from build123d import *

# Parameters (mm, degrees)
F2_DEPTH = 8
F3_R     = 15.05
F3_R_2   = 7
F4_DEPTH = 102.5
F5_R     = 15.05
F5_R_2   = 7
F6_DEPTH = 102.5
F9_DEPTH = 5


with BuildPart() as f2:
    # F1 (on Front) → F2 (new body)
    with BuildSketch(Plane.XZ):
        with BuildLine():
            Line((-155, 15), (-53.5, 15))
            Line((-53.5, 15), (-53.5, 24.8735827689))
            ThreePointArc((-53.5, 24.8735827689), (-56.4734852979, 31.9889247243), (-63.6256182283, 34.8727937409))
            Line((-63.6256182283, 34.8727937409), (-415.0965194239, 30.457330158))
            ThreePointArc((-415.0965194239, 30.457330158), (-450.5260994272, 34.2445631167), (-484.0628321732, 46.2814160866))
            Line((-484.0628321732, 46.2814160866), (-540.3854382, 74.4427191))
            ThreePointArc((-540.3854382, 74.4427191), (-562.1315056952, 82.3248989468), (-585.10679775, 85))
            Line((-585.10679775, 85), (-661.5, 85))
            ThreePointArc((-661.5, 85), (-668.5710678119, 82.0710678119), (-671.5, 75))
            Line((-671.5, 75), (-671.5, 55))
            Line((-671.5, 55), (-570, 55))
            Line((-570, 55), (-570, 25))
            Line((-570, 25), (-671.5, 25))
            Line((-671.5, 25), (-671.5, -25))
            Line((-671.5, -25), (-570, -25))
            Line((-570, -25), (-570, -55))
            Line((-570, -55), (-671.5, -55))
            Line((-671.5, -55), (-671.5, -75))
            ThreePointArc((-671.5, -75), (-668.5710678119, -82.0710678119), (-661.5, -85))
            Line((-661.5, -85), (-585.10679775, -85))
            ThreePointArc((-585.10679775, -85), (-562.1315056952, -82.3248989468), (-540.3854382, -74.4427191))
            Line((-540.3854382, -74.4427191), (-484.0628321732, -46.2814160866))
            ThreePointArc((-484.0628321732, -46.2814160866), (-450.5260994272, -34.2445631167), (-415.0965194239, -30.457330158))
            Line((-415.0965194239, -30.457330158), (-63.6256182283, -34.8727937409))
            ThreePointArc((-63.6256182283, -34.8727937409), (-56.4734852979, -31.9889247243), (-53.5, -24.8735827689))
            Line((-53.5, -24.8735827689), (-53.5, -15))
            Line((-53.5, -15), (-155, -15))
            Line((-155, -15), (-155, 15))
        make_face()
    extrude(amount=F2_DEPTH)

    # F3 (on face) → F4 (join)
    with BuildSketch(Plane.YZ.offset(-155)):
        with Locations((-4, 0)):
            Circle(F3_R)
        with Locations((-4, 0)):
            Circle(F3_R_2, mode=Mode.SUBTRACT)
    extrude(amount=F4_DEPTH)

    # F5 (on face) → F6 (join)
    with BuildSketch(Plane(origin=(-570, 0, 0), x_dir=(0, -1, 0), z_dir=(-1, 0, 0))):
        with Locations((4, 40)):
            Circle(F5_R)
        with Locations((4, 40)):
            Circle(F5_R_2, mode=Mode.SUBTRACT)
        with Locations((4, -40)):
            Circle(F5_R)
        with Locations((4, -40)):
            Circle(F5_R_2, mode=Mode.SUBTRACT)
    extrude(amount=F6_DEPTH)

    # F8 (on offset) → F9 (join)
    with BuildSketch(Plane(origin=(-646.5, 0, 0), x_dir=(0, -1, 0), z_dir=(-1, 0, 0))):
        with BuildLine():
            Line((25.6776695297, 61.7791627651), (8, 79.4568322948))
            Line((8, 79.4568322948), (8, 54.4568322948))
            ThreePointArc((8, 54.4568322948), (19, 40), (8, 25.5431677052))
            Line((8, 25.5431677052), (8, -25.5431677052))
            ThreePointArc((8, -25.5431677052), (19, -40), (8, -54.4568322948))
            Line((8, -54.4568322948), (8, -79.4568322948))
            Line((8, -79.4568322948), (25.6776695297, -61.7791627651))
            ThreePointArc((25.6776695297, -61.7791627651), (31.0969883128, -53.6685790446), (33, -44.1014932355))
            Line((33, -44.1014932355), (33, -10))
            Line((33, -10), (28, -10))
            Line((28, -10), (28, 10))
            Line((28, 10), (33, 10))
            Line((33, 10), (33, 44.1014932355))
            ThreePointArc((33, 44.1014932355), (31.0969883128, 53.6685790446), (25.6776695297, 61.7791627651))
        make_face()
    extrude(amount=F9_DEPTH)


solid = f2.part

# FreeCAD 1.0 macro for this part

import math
import FreeCAD as App
import Part
import Sketcher

V = App.Vector
Q = App.Units.Quantity

doc = App.newDocument("Part")
body = doc.addObject("PartDesign::Body", "Body")

sketch1 = doc.addObject("Sketcher::SketchObject", "Sketch")
body.addObject(sketch1)
sketch1.AttachmentSupport = (doc.XZ_Plane, [""])
sketch1.MapMode = "FlatFace"
sketch1.addGeometry(Part.LineSegment(V(-155, 15, 0), V(-54, 15, 0)), False)
sketch1.addGeometry(Part.LineSegment(V(-54, 15, 0), V(-54, 25, 0)), False)
sketch1.addGeometry(Part.ArcOfCircle(Part.Circle(V(-64, 25, 0), V(0, 0, 1), 10), math.radians(0), math.radians(91)), False)
sketch1.addGeometry(Part.LineSegment(V(-64, 35, 0), V(-415, 30, 0)), False)
sketch1.addGeometry(Part.ArcOfCircle(Part.Circle(V(-417, 180, 0), V(0, 0, 1), 150), math.radians(-117), math.radians(-89)), False)
sketch1.addGeometry(Part.LineSegment(V(-484, 46, 0), V(-540, 74, 0)), False)
sketch1.addGeometry(Part.ArcOfCircle(Part.Circle(V(-585, -15, 0), V(0, 0, 1), 100), math.radians(63), math.radians(90)), False)
sketch1.addGeometry(Part.LineSegment(V(-585, 85, 0), V(-662, 85, 0)), False)
sketch1.addGeometry(Part.ArcOfCircle(Part.Circle(V(-662, 75, 0), V(0, 0, 1), 10), math.radians(90), math.radians(180)), False)
sketch1.addGeometry(Part.LineSegment(V(-672, 75, 0), V(-672, 55, 0)), False)
sketch1.addGeometry(Part.LineSegment(V(-672, 55, 0), V(-570, 55, 0)), False)
sketch1.addGeometry(Part.LineSegment(V(-570, 55, 0), V(-570, 25, 0)), False)
sketch1.addGeometry(Part.LineSegment(V(-570, 25, 0), V(-672, 25, 0)), False)
sketch1.addGeometry(Part.LineSegment(V(-672, 25, 0), V(-672, -25, 0)), False)
sketch1.addGeometry(Part.LineSegment(V(-672, -25, 0), V(-570, -25, 0)), False)
sketch1.addGeometry(Part.LineSegment(V(-570, -25, 0), V(-570, -55, 0)), False)
sketch1.addGeometry(Part.LineSegment(V(-570, -55, 0), V(-672, -55, 0)), False)
sketch1.addGeometry(Part.LineSegment(V(-672, -55, 0), V(-672, -75, 0)), False)
sketch1.addGeometry(Part.ArcOfCircle(Part.Circle(V(-662, -75, 0), V(0, 0, 1), 10), math.radians(180), math.radians(270)), False)
sketch1.addGeometry(Part.LineSegment(V(-662, -85, 0), V(-585, -85, 0)), False)
sketch1.addGeometry(Part.ArcOfCircle(Part.Circle(V(-585, 15, 0), V(0, 0, 1), 100), math.radians(-90), math.radians(-63)), False)
sketch1.addGeometry(Part.LineSegment(V(-540, -74, 0), V(-484, -46, 0)), False)
sketch1.addGeometry(Part.ArcOfCircle(Part.Circle(V(-417, -180, 0), V(0, 0, 1), 150), math.radians(89), math.radians(117)), False)
sketch1.addGeometry(Part.LineSegment(V(-415, -30, 0), V(-64, -35, 0)), False)
sketch1.addGeometry(Part.ArcOfCircle(Part.Circle(V(-64, -25, 0), V(0, 0, 1), 10), math.radians(-91), math.radians(0)), False)
sketch1.addGeometry(Part.LineSegment(V(-54, -25, 0), V(-54, -15, 0)), False)
sketch1.addGeometry(Part.LineSegment(V(-54, -15, 0), V(-155, -15, 0)), False)
sketch1.addGeometry(Part.LineSegment(V(-155, -15, 0), V(-155, 15, 0)), False)
sketch1.addConstraint(Sketcher.Constraint("Coincident", 0, 2, 1, 1))
sketch1.addConstraint(Sketcher.Constraint("Tangent", 1, 2, 2, 1))
sketch1.addConstraint(Sketcher.Constraint("Tangent", 2, 2, 3, 1))
sketch1.addConstraint(Sketcher.Constraint("Tangent", 3, 2, 4, 2))
sketch1.addConstraint(Sketcher.Constraint("Tangent", 4, 1, 5, 1))
sketch1.addConstraint(Sketcher.Constraint("Tangent", 5, 2, 6, 1))
sketch1.addConstraint(Sketcher.Constraint("Tangent", 6, 2, 7, 1))
sketch1.addConstraint(Sketcher.Constraint("Tangent", 7, 2, 8, 1))
sketch1.addConstraint(Sketcher.Constraint("Tangent", 8, 2, 9, 1))
sketch1.addConstraint(Sketcher.Constraint("Coincident", 9, 2, 10, 1))
sketch1.addConstraint(Sketcher.Constraint("Coincident", 10, 2, 11, 1))
sketch1.addConstraint(Sketcher.Constraint("Coincident", 11, 2, 12, 1))
sketch1.addConstraint(Sketcher.Constraint("Coincident", 12, 2, 13, 1))
sketch1.addConstraint(Sketcher.Constraint("Coincident", 13, 2, 14, 1))
sketch1.addConstraint(Sketcher.Constraint("Coincident", 14, 2, 15, 1))
sketch1.addConstraint(Sketcher.Constraint("Coincident", 15, 2, 16, 1))
sketch1.addConstraint(Sketcher.Constraint("Coincident", 16, 2, 17, 1))
sketch1.addConstraint(Sketcher.Constraint("Tangent", 17, 2, 18, 1))
sketch1.addConstraint(Sketcher.Constraint("Tangent", 18, 2, 19, 1))
sketch1.addConstraint(Sketcher.Constraint("Tangent", 19, 2, 20, 1))
sketch1.addConstraint(Sketcher.Constraint("Tangent", 20, 2, 21, 1))
sketch1.addConstraint(Sketcher.Constraint("Tangent", 21, 2, 22, 2))
sketch1.addConstraint(Sketcher.Constraint("Tangent", 22, 1, 23, 1))
sketch1.addConstraint(Sketcher.Constraint("Tangent", 23, 2, 24, 1))
sketch1.addConstraint(Sketcher.Constraint("Tangent", 24, 2, 25, 1))
sketch1.addConstraint(Sketcher.Constraint("Coincident", 25, 2, 26, 1))
sketch1.addConstraint(Sketcher.Constraint("Coincident", 26, 2, 27, 1))
sketch1.addConstraint(Sketcher.Constraint("Coincident", 27, 2, 0, 1))
sketch1.addConstraint(Sketcher.Constraint("Horizontal", 0))
sketch1.addConstraint(Sketcher.Constraint("Vertical", 1))
sketch1.addConstraint(Sketcher.Constraint("Horizontal", 7))
sketch1.addConstraint(Sketcher.Constraint("Vertical", 9))
sketch1.addConstraint(Sketcher.Constraint("Horizontal", 10))
sketch1.addConstraint(Sketcher.Constraint("Vertical", 11))
sketch1.addConstraint(Sketcher.Constraint("Horizontal", 12))
sketch1.addConstraint(Sketcher.Constraint("Vertical", 13))
sketch1.addConstraint(Sketcher.Constraint("Horizontal", 14))
sketch1.addConstraint(Sketcher.Constraint("Vertical", 15))
sketch1.addConstraint(Sketcher.Constraint("Horizontal", 16))
sketch1.addConstraint(Sketcher.Constraint("Vertical", 17))
sketch1.addConstraint(Sketcher.Constraint("Horizontal", 19))
sketch1.addConstraint(Sketcher.Constraint("Vertical", 25))
sketch1.addConstraint(Sketcher.Constraint("Horizontal", 26))
sketch1.addConstraint(Sketcher.Constraint("Vertical", 27))
sketch1.addConstraint(Sketcher.Constraint("Equal", 2, 8))
sketch1.addConstraint(Sketcher.Constraint("Equal", 8, 18))
sketch1.addConstraint(Sketcher.Constraint("Equal", 6, 20))
sketch1.addConstraint(Sketcher.Constraint("Equal", 4, 22))
sketch1.addConstraint(Sketcher.Constraint("Equal", 18, 24))
sketch1.addConstraint(Sketcher.Constraint("Symmetric", 8, 3, 18, 3, -1))
sketch1.addConstraint(Sketcher.Constraint("Symmetric", 4, 3, 22, 3, -1))
sketch1.addConstraint(Sketcher.Constraint("Symmetric", 2, 3, 24, 3, -1))
sketch1.addConstraint(Sketcher.Constraint("Symmetric", 11, 2, 14, 2, -1))
sketch1.addConstraint(Sketcher.Constraint("Horizontal", 20, 3, 0, 2))
sketch1.addConstraint(Sketcher.Constraint("Horizontal", 6, 3, 25, 2))
sketch1.addConstraint(Sketcher.Constraint("Vertical", 6, 3, 20, 3))
sketch1.addConstraint(Sketcher.Constraint("Vertical", 9, 2, 12, 2))
sketch1.addConstraint(Sketcher.Constraint("Equal", 0, 10))
sketch1.addConstraint(Sketcher.Constraint("Equal", 11, 15))
sketch1.addConstraint(Sketcher.Constraint("Equal", 15, 27))
sketch1.addConstraint(Sketcher.Constraint("Radius", 2, Q("10 mm")))
sketch1.addConstraint(Sketcher.Constraint("Radius", 4, Q("150 mm")))
sketch1.addConstraint(Sketcher.Constraint("Radius", 6, Q("100 mm")))
sketch1.addConstraint(Sketcher.Constraint("DistanceY", 9, 2, 9, 1, Q("20 mm")))
sketch1.addConstraint(Sketcher.Constraint("DistanceY", 11, 2, 11, 1, Q("30 mm")))
sketch1.addConstraint(Sketcher.Constraint("DistanceX", 0, 1, 0, 2, Q("101.5 mm")))
sketch1.addConstraint(Sketcher.Constraint("DistanceX", 10, 2, -1, 1, Q("570 mm")))
sketch1.addConstraint(Sketcher.Constraint("DistanceX", 26, 2, -1, 1, Q("155 mm")))
sketch1.addConstraint(Sketcher.Constraint("DistanceY", 2, 2, 4, 3, Q("145.572701 mm")))
sketch1.addConstraint(Sketcher.Constraint("DistanceX", 7, 2, 7, 1, Q("76.393202 mm")))
sketch1.addConstraint(Sketcher.Constraint("DistanceY", 1, 1, 1, 2, Q("9.873583 mm")))
sketch1.addConstraint(Sketcher.Constraint("DistanceX", 3, 2, -1, 1, Q("415.096519 mm")))
pad1 = doc.addObject("PartDesign::Pad", "Pad")
body.addObject(pad1)
pad1.Profile = sketch1
pad1.Length = 8

sketch2 = doc.addObject("Sketcher::SketchObject", "Sketch001")
body.addObject(sketch2)
sketch2.AttachmentSupport = (doc.YZ_Plane, [""])
sketch2.MapMode = "FlatFace"
sketch2.AttachmentOffset = App.Placement(V(0, 0, -155), App.Rotation())
sketch2.addGeometry(Part.Circle(V(-4, 0, 0), V(0, 0, 1), 15), False)
sketch2.addGeometry(Part.Circle(V(-4, 0, 0), V(0, 0, 1), 7), False)
sketch2.addConstraint(Sketcher.Constraint("Coincident", 1, 3, 0, 3))
sketch2.addConstraint(Sketcher.Constraint("PointOnObject", 0, 3, -1))
sketch2.addConstraint(Sketcher.Constraint("Diameter", 1, Q("14 mm")))
sketch2.addConstraint(Sketcher.Constraint("Diameter", 0, Q("30.1 mm")))
sketch2.addConstraint(Sketcher.Constraint("DistanceX", 0, 3, -1, 1, Q("4 mm")))
pad2 = doc.addObject("PartDesign::Pad", "Pad001")
body.addObject(pad2)
pad2.Profile = sketch2
pad2.Length = 102.5

sketch3 = doc.addObject("Sketcher::SketchObject", "Sketch002")
body.addObject(sketch3)
sketch3.AttachmentSupport = (doc.YZ_Plane, [""])
sketch3.MapMode = "FlatFace"
sketch3.AttachmentOffset = App.Placement(V(0, 0, -570), App.Rotation())
sketch3.addGeometry(Part.Circle(V(-4, 40, 0), V(0, 0, 1), 15), False)
sketch3.addGeometry(Part.Circle(V(-4, 40, 0), V(0, 0, 1), 7), False)
sketch3.addGeometry(Part.Circle(V(-4, -40, 0), V(0, 0, 1), 15), False)
sketch3.addGeometry(Part.Circle(V(-4, -40, 0), V(0, 0, 1), 7), False)
sketch3.addConstraint(Sketcher.Constraint("Coincident", 1, 3, 0, 3))
sketch3.addConstraint(Sketcher.Constraint("Coincident", 3, 3, 2, 3))
sketch3.addConstraint(Sketcher.Constraint("Equal", 0, 2))
sketch3.addConstraint(Sketcher.Constraint("Equal", 1, 3))
sketch3.addConstraint(Sketcher.Constraint("Symmetric", 0, 3, 2, 3, -1))
sketch3.addConstraint(Sketcher.Constraint("Diameter", 1, Q("14 mm")))
sketch3.addConstraint(Sketcher.Constraint("Diameter", 0, Q("30.1 mm")))
sketch3.addConstraint(Sketcher.Constraint("DistanceX", 0, 3, -1, 1, Q("4 mm")))
sketch3.addConstraint(Sketcher.Constraint("DistanceY", -1, 1, 0, 3, Q("40 mm")))
pad3 = doc.addObject("PartDesign::Pad", "Pad002")
body.addObject(pad3)
pad3.Profile = sketch3
pad3.Length = 102.5
pad3.Reversed = True

sketch4 = doc.addObject("Sketcher::SketchObject", "Sketch003")
body.addObject(sketch4)
sketch4.AttachmentSupport = (doc.YZ_Plane, [""])
sketch4.MapMode = "FlatFace"
sketch4.AttachmentOffset = App.Placement(V(0, 0, -646.5), App.Rotation())
sketch4.addGeometry(Part.LineSegment(V(-26, 62, 0), V(-8, 79, 0)), False)
sketch4.addGeometry(Part.LineSegment(V(-8, 79, 0), V(-8, 54, 0)), False)
sketch4.addGeometry(Part.ArcOfCircle(Part.Circle(V(-4, 40, 0), V(0, 0, 1), 15), math.radians(105), math.radians(255)), False)
sketch4.addGeometry(Part.LineSegment(V(-8, 26, 0), V(-8, -26, 0)), False)
sketch4.addGeometry(Part.ArcOfCircle(Part.Circle(V(-4, -40, 0), V(0, 0, 1), 15), math.radians(105), math.radians(255)), False)
sketch4.addGeometry(Part.LineSegment(V(-8, -54, 0), V(-8, -79, 0)), False)
sketch4.addGeometry(Part.LineSegment(V(-8, -79, 0), V(-26, -62, 0)), False)
sketch4.addGeometry(Part.ArcOfCircle(Part.Circle(V(-8, -44, 0), V(0, 0, 1), 25), math.radians(180), math.radians(225)), False)
sketch4.addGeometry(Part.LineSegment(V(-33, -44, 0), V(-33, -10, 0)), False)
sketch4.addGeometry(Part.LineSegment(V(-33, -10, 0), V(-28, -10, 0)), False)
sketch4.addGeometry(Part.LineSegment(V(-28, -10, 0), V(-28, 10, 0)), False)
sketch4.addGeometry(Part.LineSegment(V(-28, 10, 0), V(-33, 10, 0)), False)
sketch4.addGeometry(Part.LineSegment(V(-33, 10, 0), V(-33, 44, 0)), False)
sketch4.addGeometry(Part.ArcOfCircle(Part.Circle(V(-8, 44, 0), V(0, 0, 1), 25), math.radians(135), math.radians(180)), False)
sketch4.addConstraint(Sketcher.Constraint("Coincident", 0, 2, 1, 1))
sketch4.addConstraint(Sketcher.Constraint("Coincident", 1, 2, 2, 1))
sketch4.addConstraint(Sketcher.Constraint("Coincident", 2, 2, 3, 1))
sketch4.addConstraint(Sketcher.Constraint("Coincident", 3, 2, 4, 1))
sketch4.addConstraint(Sketcher.Constraint("Coincident", 4, 2, 5, 1))
sketch4.addConstraint(Sketcher.Constraint("Coincident", 5, 2, 6, 1))
sketch4.addConstraint(Sketcher.Constraint("Tangent", 6, 2, 7, 2))
sketch4.addConstraint(Sketcher.Constraint("Tangent", 7, 1, 8, 1))
sketch4.addConstraint(Sketcher.Constraint("Coincident", 8, 2, 9, 1))
sketch4.addConstraint(Sketcher.Constraint("Coincident", 9, 2, 10, 1))
sketch4.addConstraint(Sketcher.Constraint("Coincident", 10, 2, 11, 1))
sketch4.addConstraint(Sketcher.Constraint("Coincident", 11, 2, 12, 1))
sketch4.addConstraint(Sketcher.Constraint("Tangent", 12, 2, 13, 2))
sketch4.addConstraint(Sketcher.Constraint("Tangent", 13, 1, 0, 1))
sketch4.addConstraint(Sketcher.Constraint("Vertical", 1))
sketch4.addConstraint(Sketcher.Constraint("Vertical", 3))
sketch4.addConstraint(Sketcher.Constraint("Vertical", 5))
sketch4.addConstraint(Sketcher.Constraint("Vertical", 8))
sketch4.addConstraint(Sketcher.Constraint("Horizontal", 9))
sketch4.addConstraint(Sketcher.Constraint("Vertical", 10))
sketch4.addConstraint(Sketcher.Constraint("Horizontal", 11))
sketch4.addConstraint(Sketcher.Constraint("Vertical", 12))
sketch4.addConstraint(Sketcher.Constraint("Equal", 2, 4))
sketch4.addConstraint(Sketcher.Constraint("Equal", 7, 13))
sketch4.addConstraint(Sketcher.Constraint("Symmetric", 2, 3, 4, 3, -1))
sketch4.addConstraint(Sketcher.Constraint("Symmetric", 7, 3, 13, 3, -1))
sketch4.addConstraint(Sketcher.Constraint("Symmetric", 0, 2, 5, 2, -1))
sketch4.addConstraint(Sketcher.Constraint("Perpendicular", 0, 6))
sketch4.addConstraint(Sketcher.Constraint("Vertical", 13, 3, 0, 2))
sketch4.addConstraint(Sketcher.Constraint("Vertical", 1, 2, 2, 2))
sketch4.addConstraint(Sketcher.Constraint("Equal", 8, 12))
sketch4.addConstraint(Sketcher.Constraint("Radius", 2, Q("15 mm")))
sketch4.addConstraint(Sketcher.Constraint("Radius", 7, Q("25 mm")))
sketch4.addConstraint(Sketcher.Constraint("DistanceX", 9, 1, 9, 2, Q("5 mm")))
sketch4.addConstraint(Sketcher.Constraint("DistanceY", 1, 2, 1, 1, Q("25 mm")))
sketch4.addConstraint(Sketcher.Constraint("DistanceY", 10, 1, 10, 2, Q("20 mm")))
sketch4.addConstraint(Sketcher.Constraint("DistanceX", 2, 3, -1, 1, Q("4 mm")))
sketch4.addConstraint(Sketcher.Constraint("DistanceY", -1, 1, 2, 3, Q("40 mm")))
sketch4.addConstraint(Sketcher.Constraint("DistanceX", 7, 3, -1, 1, Q("8 mm")))
pad4 = doc.addObject("PartDesign::Pad", "Pad003")
body.addObject(pad4)
pad4.Profile = sketch4
pad4.Length = 5
pad4.Reversed = True

doc.recompute()
